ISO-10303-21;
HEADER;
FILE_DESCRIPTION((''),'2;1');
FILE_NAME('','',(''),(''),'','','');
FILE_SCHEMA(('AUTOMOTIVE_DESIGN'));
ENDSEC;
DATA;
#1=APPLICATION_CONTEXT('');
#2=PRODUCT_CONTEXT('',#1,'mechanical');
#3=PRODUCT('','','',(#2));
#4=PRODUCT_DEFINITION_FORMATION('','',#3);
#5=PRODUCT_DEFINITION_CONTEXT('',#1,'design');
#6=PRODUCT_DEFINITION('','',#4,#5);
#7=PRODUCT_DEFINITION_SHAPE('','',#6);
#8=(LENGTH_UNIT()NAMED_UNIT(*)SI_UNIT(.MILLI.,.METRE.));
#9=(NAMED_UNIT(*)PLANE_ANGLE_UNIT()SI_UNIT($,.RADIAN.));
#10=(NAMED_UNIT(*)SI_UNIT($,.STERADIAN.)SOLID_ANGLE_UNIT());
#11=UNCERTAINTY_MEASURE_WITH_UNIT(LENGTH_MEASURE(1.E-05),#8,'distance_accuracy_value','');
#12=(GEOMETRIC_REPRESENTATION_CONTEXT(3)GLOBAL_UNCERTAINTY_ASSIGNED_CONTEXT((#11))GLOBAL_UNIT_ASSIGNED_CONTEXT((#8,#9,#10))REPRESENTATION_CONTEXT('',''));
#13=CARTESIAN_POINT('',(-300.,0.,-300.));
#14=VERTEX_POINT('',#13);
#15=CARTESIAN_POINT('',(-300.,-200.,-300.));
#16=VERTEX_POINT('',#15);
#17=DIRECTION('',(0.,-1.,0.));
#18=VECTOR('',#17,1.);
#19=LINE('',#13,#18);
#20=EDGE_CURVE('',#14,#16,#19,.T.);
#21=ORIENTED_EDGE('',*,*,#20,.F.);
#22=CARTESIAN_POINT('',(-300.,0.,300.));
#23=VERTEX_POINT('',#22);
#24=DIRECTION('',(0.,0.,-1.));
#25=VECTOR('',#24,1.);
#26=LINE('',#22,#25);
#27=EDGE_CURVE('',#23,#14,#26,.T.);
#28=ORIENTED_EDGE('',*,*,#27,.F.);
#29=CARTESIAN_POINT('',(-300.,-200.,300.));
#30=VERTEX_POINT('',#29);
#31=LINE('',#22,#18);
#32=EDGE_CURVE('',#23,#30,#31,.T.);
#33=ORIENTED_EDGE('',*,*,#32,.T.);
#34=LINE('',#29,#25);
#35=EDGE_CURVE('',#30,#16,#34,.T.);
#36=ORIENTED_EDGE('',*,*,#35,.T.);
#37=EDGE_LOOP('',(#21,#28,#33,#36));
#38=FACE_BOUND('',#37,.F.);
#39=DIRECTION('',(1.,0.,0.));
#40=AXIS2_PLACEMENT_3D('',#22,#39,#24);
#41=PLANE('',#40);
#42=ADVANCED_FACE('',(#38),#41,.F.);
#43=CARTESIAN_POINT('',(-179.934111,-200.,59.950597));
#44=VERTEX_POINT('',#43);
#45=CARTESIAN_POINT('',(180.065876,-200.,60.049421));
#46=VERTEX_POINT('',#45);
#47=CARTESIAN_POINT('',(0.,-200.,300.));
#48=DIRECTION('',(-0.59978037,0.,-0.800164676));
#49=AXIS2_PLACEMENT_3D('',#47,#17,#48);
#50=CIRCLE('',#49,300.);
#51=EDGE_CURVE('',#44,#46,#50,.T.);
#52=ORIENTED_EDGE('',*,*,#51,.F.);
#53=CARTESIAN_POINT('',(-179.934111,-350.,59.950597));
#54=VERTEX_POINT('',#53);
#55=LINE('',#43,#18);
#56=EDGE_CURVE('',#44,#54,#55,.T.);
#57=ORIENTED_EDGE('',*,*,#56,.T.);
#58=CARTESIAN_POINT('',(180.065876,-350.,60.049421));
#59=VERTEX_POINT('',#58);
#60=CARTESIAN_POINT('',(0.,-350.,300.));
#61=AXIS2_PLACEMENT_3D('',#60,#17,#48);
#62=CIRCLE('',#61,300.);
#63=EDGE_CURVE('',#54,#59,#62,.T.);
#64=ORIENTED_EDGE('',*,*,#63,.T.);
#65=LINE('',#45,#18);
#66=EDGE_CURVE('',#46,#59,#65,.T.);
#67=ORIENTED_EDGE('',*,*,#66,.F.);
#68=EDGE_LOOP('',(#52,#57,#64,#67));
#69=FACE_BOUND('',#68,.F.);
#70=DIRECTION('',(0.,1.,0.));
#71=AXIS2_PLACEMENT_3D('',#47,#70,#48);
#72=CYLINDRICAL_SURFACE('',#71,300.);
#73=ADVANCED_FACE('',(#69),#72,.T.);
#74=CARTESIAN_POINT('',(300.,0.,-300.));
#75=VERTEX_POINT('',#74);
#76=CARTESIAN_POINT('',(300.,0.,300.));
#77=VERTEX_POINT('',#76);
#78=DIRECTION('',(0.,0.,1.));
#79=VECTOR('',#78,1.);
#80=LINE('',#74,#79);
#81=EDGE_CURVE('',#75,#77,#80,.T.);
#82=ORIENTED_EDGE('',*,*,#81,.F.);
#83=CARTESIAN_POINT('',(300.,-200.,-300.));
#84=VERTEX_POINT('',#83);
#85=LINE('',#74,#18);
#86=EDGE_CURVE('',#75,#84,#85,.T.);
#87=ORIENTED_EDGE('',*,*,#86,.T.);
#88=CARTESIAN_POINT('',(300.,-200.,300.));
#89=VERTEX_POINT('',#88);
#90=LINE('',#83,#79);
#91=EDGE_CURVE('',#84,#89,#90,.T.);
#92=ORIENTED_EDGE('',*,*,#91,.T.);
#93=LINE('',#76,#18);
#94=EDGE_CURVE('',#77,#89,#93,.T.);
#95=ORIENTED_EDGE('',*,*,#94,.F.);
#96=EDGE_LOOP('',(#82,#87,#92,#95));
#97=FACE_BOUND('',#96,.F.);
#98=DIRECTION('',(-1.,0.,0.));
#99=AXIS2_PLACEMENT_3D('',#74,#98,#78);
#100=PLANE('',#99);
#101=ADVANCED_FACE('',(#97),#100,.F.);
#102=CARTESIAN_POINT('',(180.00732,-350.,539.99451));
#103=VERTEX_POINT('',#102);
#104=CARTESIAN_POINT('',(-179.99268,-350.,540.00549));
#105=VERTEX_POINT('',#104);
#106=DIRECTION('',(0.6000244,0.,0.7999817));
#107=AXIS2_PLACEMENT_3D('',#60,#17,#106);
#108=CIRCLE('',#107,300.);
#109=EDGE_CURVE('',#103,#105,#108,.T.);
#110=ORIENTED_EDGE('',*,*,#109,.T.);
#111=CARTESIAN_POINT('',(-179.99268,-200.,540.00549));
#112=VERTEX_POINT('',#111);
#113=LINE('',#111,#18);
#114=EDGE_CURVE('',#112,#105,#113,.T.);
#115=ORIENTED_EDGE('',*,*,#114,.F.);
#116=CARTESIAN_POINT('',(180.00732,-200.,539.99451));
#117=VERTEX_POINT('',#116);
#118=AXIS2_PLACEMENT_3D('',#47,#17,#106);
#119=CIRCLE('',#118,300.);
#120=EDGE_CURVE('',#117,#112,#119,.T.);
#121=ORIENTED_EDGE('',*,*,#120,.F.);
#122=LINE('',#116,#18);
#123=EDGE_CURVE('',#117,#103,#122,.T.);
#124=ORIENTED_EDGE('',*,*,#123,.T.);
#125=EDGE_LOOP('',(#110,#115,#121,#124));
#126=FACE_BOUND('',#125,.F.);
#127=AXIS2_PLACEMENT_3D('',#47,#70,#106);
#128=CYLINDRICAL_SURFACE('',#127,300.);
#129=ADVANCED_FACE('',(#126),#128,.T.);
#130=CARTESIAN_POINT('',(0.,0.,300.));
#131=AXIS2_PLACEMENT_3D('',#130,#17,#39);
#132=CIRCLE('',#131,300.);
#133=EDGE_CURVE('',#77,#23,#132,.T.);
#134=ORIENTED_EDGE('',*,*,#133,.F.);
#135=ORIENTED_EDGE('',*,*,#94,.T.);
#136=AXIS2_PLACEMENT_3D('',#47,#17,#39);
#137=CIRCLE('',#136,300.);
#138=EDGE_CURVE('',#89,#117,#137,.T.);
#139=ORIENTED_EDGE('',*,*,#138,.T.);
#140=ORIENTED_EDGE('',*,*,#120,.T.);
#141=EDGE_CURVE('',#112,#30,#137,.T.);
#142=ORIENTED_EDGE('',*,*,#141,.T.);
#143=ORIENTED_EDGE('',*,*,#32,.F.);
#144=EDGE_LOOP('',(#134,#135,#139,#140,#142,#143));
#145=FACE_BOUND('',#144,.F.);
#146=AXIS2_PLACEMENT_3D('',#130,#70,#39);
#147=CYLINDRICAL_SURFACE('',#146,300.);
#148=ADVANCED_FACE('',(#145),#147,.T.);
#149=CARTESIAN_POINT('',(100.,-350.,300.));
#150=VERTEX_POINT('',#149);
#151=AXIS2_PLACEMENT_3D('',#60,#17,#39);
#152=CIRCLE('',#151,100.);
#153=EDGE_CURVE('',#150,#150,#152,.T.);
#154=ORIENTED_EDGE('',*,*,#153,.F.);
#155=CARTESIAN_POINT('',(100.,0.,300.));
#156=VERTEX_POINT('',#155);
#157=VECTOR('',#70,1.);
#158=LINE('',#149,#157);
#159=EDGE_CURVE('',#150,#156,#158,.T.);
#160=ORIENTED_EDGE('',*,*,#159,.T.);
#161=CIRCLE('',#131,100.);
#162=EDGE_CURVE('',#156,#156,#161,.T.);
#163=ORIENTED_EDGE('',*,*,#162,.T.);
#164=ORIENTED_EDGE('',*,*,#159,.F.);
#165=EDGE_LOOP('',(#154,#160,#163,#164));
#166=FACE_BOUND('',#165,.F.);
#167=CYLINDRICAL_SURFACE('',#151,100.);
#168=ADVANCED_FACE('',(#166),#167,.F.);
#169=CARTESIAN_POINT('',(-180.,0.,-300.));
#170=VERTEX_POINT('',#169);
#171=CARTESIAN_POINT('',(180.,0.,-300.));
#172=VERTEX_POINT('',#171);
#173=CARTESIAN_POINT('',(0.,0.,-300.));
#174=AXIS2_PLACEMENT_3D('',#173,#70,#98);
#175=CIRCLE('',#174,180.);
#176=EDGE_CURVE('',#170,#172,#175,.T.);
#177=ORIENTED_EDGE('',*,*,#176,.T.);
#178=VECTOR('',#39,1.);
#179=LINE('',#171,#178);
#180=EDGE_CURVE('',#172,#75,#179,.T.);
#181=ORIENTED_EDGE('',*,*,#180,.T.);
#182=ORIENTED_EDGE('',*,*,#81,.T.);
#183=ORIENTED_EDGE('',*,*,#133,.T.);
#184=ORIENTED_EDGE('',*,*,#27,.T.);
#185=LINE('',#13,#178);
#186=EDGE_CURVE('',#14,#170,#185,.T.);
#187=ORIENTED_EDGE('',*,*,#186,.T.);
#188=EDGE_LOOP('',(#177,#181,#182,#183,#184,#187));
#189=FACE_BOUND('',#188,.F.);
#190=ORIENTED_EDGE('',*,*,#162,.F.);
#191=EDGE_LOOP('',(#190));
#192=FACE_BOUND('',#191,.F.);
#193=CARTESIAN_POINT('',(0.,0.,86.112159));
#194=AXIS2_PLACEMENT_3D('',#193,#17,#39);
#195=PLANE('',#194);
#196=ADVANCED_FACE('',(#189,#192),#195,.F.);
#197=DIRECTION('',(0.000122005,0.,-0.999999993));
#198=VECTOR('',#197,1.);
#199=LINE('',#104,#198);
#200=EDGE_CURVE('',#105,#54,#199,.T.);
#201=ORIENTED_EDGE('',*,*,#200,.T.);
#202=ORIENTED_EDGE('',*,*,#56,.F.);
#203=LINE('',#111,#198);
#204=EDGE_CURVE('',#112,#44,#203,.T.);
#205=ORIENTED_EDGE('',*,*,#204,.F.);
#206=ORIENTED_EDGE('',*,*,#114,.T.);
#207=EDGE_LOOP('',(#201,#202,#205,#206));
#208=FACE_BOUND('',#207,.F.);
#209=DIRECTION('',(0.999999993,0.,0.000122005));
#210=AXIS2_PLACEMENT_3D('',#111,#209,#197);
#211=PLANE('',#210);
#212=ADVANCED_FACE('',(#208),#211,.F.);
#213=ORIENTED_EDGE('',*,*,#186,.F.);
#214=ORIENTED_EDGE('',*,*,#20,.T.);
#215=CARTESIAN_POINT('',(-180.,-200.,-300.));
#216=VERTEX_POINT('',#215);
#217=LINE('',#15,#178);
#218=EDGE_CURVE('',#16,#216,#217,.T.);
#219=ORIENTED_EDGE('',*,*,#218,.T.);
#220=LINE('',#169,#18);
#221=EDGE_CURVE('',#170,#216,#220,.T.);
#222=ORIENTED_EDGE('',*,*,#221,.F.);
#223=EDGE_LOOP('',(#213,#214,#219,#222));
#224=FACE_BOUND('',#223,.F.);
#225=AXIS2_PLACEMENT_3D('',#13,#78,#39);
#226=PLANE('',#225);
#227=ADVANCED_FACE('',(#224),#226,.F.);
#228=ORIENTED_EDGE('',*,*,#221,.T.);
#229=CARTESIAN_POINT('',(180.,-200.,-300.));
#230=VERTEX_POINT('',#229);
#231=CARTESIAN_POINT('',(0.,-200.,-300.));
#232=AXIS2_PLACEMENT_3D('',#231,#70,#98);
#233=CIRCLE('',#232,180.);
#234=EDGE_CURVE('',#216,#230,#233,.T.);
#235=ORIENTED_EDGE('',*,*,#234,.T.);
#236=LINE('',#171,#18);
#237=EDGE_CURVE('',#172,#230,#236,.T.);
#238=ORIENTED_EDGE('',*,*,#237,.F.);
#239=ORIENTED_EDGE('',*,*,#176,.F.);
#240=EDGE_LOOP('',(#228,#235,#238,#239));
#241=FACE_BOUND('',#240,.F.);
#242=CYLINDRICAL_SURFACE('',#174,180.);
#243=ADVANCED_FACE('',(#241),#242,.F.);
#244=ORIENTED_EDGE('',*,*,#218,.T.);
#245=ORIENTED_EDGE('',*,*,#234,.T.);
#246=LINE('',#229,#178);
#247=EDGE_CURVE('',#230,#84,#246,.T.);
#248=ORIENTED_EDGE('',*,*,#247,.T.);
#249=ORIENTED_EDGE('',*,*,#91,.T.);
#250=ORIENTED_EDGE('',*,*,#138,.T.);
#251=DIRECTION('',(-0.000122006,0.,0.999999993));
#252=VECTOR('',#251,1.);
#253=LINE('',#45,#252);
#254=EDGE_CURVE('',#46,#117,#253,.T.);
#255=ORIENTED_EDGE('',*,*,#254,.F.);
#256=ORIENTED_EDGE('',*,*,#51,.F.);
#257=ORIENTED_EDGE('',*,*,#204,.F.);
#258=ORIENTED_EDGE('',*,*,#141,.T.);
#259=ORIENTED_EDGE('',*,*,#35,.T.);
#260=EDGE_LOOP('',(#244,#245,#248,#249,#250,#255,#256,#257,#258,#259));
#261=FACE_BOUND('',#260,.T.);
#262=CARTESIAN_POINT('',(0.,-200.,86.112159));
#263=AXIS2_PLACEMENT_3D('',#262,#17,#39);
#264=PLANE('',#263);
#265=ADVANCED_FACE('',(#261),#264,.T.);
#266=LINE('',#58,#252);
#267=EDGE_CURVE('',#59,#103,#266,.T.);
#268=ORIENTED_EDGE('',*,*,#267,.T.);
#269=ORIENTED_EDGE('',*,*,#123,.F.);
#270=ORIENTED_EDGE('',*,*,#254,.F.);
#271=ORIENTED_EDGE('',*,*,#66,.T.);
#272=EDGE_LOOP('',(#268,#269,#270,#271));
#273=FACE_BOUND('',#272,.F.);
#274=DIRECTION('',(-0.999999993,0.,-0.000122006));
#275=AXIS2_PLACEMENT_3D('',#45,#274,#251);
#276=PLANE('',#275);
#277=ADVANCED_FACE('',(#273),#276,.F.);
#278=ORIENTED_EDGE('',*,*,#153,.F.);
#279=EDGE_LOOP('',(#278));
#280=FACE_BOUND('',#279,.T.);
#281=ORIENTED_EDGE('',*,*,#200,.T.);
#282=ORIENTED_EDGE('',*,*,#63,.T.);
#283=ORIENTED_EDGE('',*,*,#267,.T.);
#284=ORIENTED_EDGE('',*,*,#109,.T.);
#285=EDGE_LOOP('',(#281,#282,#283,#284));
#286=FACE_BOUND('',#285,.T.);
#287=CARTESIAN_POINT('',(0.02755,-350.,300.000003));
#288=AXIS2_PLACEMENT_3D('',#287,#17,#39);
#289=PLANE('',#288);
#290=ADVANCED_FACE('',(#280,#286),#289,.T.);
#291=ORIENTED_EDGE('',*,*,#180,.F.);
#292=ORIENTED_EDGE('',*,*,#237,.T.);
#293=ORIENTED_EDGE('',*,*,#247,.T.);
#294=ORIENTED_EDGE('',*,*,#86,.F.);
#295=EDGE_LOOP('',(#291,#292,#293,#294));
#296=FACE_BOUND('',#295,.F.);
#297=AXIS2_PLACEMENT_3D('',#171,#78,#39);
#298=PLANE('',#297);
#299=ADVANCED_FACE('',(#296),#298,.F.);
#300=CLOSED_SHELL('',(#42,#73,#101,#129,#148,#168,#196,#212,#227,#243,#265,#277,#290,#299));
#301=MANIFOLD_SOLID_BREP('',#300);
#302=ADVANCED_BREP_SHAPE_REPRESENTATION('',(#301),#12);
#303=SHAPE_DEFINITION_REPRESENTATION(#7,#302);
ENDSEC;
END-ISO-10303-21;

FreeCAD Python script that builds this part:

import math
import FreeCAD as App
import Part
import Sketcher

V = App.Vector

doc = App.newDocument("Part")
body = doc.addObject("PartDesign::Body", "Body")

sketch1 = doc.addObject("Sketcher::SketchObject", "Sketch")
body.addObject(sketch1)
sketch1.AttachmentSupport = (doc.XZ_Plane, [""])
sketch1.MapMode = "FlatFace"
sketch1.addGeometry(Part.LineSegment(V(-300, 300, 0), V(-300, -300, 0)), False)
sketch1.addGeometry(Part.LineSegment(V(-300, -300, 0), V(-180, -300, 0)), False)
sketch1.addGeometry(Part.ArcOfCircle(Part.Circle(V(0, -300, 0), V(0, 0, 1), 180), math.radians(0), math.radians(180)), False)
sketch1.addGeometry(Part.LineSegment(V(180, -300, 0), V(300, -300, 0)), False)
sketch1.addGeometry(Part.LineSegment(V(300, -300, 0), V(300, 300, 0)), False)
sketch1.addGeometry(Part.ArcOfCircle(Part.Circle(V(0, 300, 0), V(0, 0, 1), 300), math.radians(0), math.radians(180)), False)
sketch1.addConstraint(Sketcher.Constraint("Coincident", 0, 2, 1, 1))
sketch1.addConstraint(Sketcher.Constraint("Coincident", 1, 2, 2, 2))
sketch1.addConstraint(Sketcher.Constraint("Coincident", 2, 1, 3, 1))
sketch1.addConstraint(Sketcher.Constraint("Coincident", 3, 2, 4, 1))
sketch1.addConstraint(Sketcher.Constraint("Tangent", 4, 2, 5, 1))
sketch1.addConstraint(Sketcher.Constraint("Tangent", 5, 2, 0, 1))
sketch1.addConstraint(Sketcher.Constraint("Vertical", 0))
sketch1.addConstraint(Sketcher.Constraint("Horizontal", 1))
sketch1.addConstraint(Sketcher.Constraint("Horizontal", 3))
sketch1.addConstraint(Sketcher.Constraint("Vertical", 4))
sketch1.addConstraint(Sketcher.Constraint("Symmetric", 2, 3, 5, 3, -1, 1))
sketch1.addConstraint(Sketcher.Constraint("Symmetric", 0, 2, 4, 2, -1, 1))
sketch1.addConstraint(Sketcher.Constraint("Horizontal", 1, 2, 2, 1))
sketch1.addConstraint(Sketcher.Constraint("Radius", 2, 180.0))
sketch1.addConstraint(Sketcher.Constraint("Radius", 5, 300.0))
sketch1.addConstraint(Sketcher.Constraint("DistanceY", 0, 2, 0, 1, 600.0))
pad1 = doc.addObject("PartDesign::Pad", "Pad")
body.addObject(pad1)
pad1.Profile = sketch1
pad1.Length = 200

sketch2 = doc.addObject("Sketcher::SketchObject", "Sketch001")
body.addObject(sketch2)
sketch2.AttachmentSupport = (doc.XZ_Plane, [""])
sketch2.MapMode = "FlatFace"
sketch2.AttachmentOffset = App.Placement(V(0, 0, 200), App.Rotation())
sketch2.addGeometry(Part.LineSegment(V(-179.99268, 540.00549, 0), V(-179.934111, 59.950597, 0)), False)
sketch2.addGeometry(Part.ArcOfCircle(Part.Circle(V(0, 300, 0), V(0, 0, 1), 300), math.radians(-126.854169), math.radians(-53.114374)), False)
sketch2.addGeometry(Part.LineSegment(V(180.065876, 60.049421, 0), V(180.00732, 539.99451, 0)), False)
sketch2.addGeometry(Part.ArcOfCircle(Part.Circle(V(0, 300, 0), V(0, 0, 1), 300), math.radians(53.128355), math.radians(126.86815)), False)
sketch2.addConstraint(Sketcher.Constraint("Coincident", 0, 2, 1, 1))
sketch2.addConstraint(Sketcher.Constraint("Coincident", 1, 2, 2, 1))
sketch2.addConstraint(Sketcher.Constraint("Coincident", 2, 2, 3, 1))
sketch2.addConstraint(Sketcher.Constraint("Coincident", 3, 2, 0, 1))
sketch2.addConstraint(Sketcher.Constraint("Coincident", 3, 3, 1, 3))
sketch2.addConstraint(Sketcher.Constraint("Equal", 1, 3))
sketch2.addConstraint(Sketcher.Constraint("PointOnObject", 1, 3, -2))
sketch2.addConstraint(Sketcher.Constraint("Parallel", 0, 2))
sketch2.addConstraint(Sketcher.Constraint("Radius", 1, 300.0))
sketch2.addConstraint(Sketcher.Constraint("DistanceY", -1, 1, 1, 3, 300.0))
sketch2.addConstraint(Sketcher.Constraint("DistanceX", 3, 2, 2, 2, 360.0))
sketch2.addConstraint(Sketcher.Constraint("DistanceX", 0, 2, -1, 1, 179.934111))
sketch2.addConstraint(Sketcher.Constraint("DistanceX", -1, 1, 2, 2, 180.00732))
pad2 = doc.addObject("PartDesign::Pad", "Pad001")
body.addObject(pad2)
pad2.Profile = sketch2
pad2.Length = 150

sketch3 = doc.addObject("Sketcher::SketchObject", "Sketch002")
body.addObject(sketch3)
sketch3.AttachmentSupport = (doc.XZ_Plane, [""])
sketch3.MapMode = "FlatFace"
sketch3.AttachmentOffset = App.Placement(V(0, 0, 350), App.Rotation())
sketch3.addGeometry(Part.Circle(V(0, 300, 0), V(0, 0, 1), 100), False)
sketch3.addConstraint(Sketcher.Constraint("PointOnObject", 0, 3, -2))
sketch3.addConstraint(Sketcher.Constraint("Diameter", 0, 200.0))
sketch3.addConstraint(Sketcher.Constraint("DistanceY", -1, 1, 0, 3, 300.0))
pocket1 = doc.addObject("PartDesign::Pocket", "Pocket")
body.addObject(pocket1)
pocket1.Profile = sketch3
pocket1.Type = "ThroughAll"

doc.recompute()
